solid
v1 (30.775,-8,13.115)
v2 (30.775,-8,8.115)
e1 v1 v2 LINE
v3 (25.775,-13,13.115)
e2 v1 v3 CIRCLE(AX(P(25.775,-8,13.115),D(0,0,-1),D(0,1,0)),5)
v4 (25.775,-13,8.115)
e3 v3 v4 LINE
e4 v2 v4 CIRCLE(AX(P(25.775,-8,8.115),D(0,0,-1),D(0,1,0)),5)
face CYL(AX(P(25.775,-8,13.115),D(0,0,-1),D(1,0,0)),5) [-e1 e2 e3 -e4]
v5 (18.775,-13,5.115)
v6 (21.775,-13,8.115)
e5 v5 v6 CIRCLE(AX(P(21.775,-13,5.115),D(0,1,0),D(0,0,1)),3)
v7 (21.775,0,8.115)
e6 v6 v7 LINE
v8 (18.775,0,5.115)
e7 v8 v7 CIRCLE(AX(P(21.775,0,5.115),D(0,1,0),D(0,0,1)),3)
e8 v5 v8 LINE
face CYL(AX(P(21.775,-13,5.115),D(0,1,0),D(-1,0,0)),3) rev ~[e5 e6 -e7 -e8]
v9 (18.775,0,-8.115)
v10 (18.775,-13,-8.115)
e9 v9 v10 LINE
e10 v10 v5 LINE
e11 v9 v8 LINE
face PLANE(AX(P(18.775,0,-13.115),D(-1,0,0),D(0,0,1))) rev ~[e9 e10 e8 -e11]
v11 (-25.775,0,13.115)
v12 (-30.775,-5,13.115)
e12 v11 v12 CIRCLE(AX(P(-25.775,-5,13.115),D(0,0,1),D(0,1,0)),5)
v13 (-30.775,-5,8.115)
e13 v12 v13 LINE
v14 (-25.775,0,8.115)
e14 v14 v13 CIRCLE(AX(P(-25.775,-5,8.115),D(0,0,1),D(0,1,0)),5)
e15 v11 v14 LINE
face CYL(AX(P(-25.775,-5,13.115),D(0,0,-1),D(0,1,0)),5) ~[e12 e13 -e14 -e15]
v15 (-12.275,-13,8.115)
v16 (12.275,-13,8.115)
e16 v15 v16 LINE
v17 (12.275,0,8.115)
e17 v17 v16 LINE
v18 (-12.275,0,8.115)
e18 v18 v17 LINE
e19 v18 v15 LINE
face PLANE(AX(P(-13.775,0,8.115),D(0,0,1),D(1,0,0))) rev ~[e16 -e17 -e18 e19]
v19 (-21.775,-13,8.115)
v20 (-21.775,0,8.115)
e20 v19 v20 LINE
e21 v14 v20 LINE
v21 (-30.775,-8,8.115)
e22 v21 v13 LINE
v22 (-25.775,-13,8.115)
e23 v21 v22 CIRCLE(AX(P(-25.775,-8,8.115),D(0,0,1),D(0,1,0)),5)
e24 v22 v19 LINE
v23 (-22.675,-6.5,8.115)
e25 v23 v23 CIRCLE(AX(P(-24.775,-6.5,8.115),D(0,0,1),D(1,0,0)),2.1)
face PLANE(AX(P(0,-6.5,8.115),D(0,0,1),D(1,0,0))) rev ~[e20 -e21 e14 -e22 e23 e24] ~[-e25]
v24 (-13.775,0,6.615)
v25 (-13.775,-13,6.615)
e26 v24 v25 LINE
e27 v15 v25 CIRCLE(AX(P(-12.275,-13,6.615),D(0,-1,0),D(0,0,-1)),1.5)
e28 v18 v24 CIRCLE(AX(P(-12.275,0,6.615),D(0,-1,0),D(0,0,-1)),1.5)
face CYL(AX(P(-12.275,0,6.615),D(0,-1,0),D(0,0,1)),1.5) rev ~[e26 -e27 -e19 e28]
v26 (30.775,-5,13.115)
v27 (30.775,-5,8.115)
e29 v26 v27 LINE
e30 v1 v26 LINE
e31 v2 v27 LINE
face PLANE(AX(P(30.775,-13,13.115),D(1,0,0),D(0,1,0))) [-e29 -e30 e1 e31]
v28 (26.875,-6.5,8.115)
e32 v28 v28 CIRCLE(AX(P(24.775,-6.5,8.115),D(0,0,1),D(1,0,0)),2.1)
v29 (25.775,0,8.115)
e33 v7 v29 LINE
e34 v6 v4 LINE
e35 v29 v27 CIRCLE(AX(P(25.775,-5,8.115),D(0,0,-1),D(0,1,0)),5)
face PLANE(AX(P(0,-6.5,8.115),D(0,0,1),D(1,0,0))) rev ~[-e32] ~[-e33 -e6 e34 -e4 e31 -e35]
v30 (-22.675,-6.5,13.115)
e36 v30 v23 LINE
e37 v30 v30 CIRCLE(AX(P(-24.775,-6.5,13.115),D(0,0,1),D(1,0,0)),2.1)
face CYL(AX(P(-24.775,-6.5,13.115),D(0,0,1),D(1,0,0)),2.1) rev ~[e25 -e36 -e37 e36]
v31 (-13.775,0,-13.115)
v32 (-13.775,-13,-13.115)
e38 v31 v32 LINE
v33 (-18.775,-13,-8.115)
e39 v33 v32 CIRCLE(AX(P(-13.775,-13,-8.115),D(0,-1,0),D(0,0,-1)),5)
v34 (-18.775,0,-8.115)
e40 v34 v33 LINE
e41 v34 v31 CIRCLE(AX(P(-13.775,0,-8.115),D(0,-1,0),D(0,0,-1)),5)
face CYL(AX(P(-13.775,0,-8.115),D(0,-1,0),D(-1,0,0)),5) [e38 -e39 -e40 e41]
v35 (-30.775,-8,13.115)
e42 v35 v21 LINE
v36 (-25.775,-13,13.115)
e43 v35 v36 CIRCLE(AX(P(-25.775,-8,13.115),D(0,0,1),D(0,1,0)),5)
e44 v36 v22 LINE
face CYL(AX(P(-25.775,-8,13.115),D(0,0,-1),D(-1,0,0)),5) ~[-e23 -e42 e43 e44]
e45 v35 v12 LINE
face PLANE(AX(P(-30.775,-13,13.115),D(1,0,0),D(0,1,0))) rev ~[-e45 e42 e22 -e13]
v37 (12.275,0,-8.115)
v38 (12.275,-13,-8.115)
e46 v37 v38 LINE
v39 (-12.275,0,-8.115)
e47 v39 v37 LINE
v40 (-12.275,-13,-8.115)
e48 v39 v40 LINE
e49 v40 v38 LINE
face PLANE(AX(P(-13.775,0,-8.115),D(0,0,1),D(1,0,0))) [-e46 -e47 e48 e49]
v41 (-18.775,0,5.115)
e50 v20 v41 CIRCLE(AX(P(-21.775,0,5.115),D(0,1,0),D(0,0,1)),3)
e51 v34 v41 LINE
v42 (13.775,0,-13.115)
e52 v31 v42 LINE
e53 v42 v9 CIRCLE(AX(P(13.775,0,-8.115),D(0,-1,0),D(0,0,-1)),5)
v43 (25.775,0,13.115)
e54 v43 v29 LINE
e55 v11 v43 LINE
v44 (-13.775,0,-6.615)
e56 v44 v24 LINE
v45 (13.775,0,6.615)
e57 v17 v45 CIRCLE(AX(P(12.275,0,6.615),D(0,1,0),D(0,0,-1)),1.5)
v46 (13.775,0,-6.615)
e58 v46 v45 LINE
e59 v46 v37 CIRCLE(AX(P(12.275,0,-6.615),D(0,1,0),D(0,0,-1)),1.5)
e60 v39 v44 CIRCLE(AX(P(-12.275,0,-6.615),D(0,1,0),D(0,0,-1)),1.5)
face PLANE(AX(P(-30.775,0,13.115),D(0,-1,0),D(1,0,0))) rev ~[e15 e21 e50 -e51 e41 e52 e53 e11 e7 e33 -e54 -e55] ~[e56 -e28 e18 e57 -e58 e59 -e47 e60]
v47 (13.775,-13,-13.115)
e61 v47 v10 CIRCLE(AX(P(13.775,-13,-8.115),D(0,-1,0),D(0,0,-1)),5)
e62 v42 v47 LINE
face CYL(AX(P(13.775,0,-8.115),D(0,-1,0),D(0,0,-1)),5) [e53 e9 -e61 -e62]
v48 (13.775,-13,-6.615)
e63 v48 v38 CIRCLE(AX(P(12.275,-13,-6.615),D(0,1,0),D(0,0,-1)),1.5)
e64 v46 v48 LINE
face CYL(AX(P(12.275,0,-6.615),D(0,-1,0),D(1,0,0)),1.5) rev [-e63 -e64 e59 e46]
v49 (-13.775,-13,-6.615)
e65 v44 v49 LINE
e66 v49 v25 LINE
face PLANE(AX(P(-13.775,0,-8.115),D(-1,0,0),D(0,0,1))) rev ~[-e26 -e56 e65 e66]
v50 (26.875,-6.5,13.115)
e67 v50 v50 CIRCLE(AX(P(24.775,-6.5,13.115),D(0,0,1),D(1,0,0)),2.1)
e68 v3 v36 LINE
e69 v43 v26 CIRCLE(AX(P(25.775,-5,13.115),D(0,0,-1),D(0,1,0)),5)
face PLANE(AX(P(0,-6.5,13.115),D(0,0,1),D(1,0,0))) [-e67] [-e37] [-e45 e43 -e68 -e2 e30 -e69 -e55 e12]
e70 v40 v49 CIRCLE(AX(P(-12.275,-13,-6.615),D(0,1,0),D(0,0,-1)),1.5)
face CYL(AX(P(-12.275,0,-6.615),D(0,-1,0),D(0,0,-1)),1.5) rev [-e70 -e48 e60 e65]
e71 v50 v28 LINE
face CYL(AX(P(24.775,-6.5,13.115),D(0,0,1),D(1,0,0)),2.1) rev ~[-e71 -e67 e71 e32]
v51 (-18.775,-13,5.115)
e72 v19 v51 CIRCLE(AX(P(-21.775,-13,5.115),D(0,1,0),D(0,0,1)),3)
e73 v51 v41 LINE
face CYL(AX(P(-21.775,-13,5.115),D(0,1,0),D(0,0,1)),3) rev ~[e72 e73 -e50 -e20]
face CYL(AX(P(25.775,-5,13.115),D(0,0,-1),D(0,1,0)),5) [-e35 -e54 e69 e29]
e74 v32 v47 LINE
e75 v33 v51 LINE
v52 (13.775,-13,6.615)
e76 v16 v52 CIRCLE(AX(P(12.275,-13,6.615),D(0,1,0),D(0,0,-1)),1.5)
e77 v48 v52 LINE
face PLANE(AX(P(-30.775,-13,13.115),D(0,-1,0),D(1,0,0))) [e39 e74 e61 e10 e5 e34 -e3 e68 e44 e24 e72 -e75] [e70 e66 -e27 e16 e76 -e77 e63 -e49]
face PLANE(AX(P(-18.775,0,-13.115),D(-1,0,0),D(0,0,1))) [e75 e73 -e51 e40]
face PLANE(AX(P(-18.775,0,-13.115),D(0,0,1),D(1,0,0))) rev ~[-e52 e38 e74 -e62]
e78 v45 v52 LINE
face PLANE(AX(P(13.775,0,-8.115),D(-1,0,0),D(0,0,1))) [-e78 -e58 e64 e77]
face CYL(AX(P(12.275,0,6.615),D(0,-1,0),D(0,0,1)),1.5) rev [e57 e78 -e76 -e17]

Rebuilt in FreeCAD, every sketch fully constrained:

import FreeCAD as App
import Part
import Sketcher
from FreeCAD import Vector
Q = App.Units.Quantity


def edges_at(feature, points):
    """Names of the edges that pass closest to the given points."""
    edges = feature.Shape.Edges
    near = lambda p: min(range(len(edges)), key=lambda i: edges[i].distToShape(Part.Vertex(*p))[0])
    return sorted({f"Edge{near(p) + 1}" for p in points})


def add_polygon(sketch, points):
    """Adds a closed chain of lines whose ends are joined by coincident constraints."""
    first, n = sketch.GeometryCount, len(points)
    for a, b in zip(points, points[1:] + points[:1]):
        sketch.addGeometry(Part.LineSegment(App.Vector(*a, 0), App.Vector(*b, 0)), False)
    for i in range(n):
        sketch.addConstraint(Sketcher.Constraint("Coincident", first + i, 2, first + (i + 1) % n, 1))

doc = App.newDocument("Part")
body = doc.addObject("PartDesign::Body", "Body")

# Sketch on XZ plane
sketch1 = body.newObject("Sketcher::SketchObject", "Sketch")
sketch1.AttachmentSupport = (doc.getObject("XZ_Plane"), [""])
sketch1.MapMode = "FlatFace"
add_polygon(sketch1, [(-19, 13), (-19, -13), (19, -13), (19, 13)])  # lines 0-3
add_polygon(sketch1, [(14, -8), (-14, -8), (-14, 8), (14, 8)])  # lines 4-7
sketch1.addConstraint(Sketcher.Constraint("Vertical", 0))
sketch1.addConstraint(Sketcher.Constraint("Horizontal", 1))
sketch1.addConstraint(Sketcher.Constraint("Vertical", 2))
sketch1.addConstraint(Sketcher.Constraint("Horizontal", 3))
sketch1.addConstraint(Sketcher.Constraint("Horizontal", 4))
sketch1.addConstraint(Sketcher.Constraint("Vertical", 5))
sketch1.addConstraint(Sketcher.Constraint("Horizontal", 6))
sketch1.addConstraint(Sketcher.Constraint("Vertical", 7))
sketch1.addConstraint(Sketcher.Constraint("Symmetric", 0, 2, 2, 2, -1, 1))
sketch1.addConstraint(Sketcher.Constraint("Symmetric", 4, 2, 6, 2, -1, 1))
sketch1.addConstraint(Sketcher.Constraint("DistanceX", 0, 2, 4, 2, Q("5 mm")))
sketch1.addConstraint(Sketcher.Constraint("DistanceY", 0, 2, 4, 2, Q("5 mm")))
sketch1.addConstraint(Sketcher.Constraint("DistanceX", 1, 1, 1, 2, Q("37.55 mm")))
sketch1.addConstraint(Sketcher.Constraint("DistanceY", 0, 2, 0, 1, Q("26.23 mm")))
pad1 = body.newObject("PartDesign::Pad", "Pad")
pad1.Profile = sketch1
pad1.Length = 13

# Sketch on XY plane
sketch2 = body.newObject("Sketcher::SketchObject", "Sketch001")
sketch2.AttachmentSupport = (doc.getObject("XY_Plane"), [""])
sketch2.MapMode = "FlatFace"
sketch2.AttachmentOffset = App.Placement(Vector(0, 0, 13.115), App.Rotation())
add_polygon(sketch2, [(-30.8, 0), (-30.8, -13), (30.8, -13), (30.8, 0)])  # lines 0-3
sketch2.addGeometry(Part.Circle(Vector(-24.8, -6.5, 0), Vector(0, 0, 1), 2.1), False)  # 4
sketch2.addGeometry(Part.Circle(Vector(24.8, -6.5, 0), Vector(0, 0, 1), 2.1), False)  # 5
sketch2.addConstraint(Sketcher.Constraint("Vertical", 0))
sketch2.addConstraint(Sketcher.Constraint("Horizontal", 1))
sketch2.addConstraint(Sketcher.Constraint("Vertical", 2))
sketch2.addConstraint(Sketcher.Constraint("Horizontal", 3))
sketch2.addConstraint(Sketcher.Constraint("Equal", 4, 5))
sketch2.addConstraint(Sketcher.Constraint("Symmetric", 2, 2, 3, 2, -1, 1))
sketch2.addConstraint(Sketcher.Constraint("Symmetric", 4, 3, 5, 3, -2))
sketch2.addConstraint(Sketcher.Constraint("Diameter", 4, Q("4.2 mm")))
sketch2.addConstraint(Sketcher.Constraint("DistanceY", 0, 2, 0, 1, Q("13 mm")))
sketch2.addConstraint(Sketcher.Constraint("DistanceX", 0, 2, 4, 3, Q("6 mm")))
sketch2.addConstraint(Sketcher.Constraint("DistanceX", 1, 1, 1, 2, Q("61.55 mm")))
sketch2.addConstraint(Sketcher.Constraint("DistanceY", 4, 3, -1, 1, Q("6.5 mm")))
pad2 = body.newObject("PartDesign::Pad", "Pad001")
pad2.Profile = sketch2
pad2.Length = 5
pad2.Reversed = True
doc.recompute()

fillet = body.newObject("PartDesign::Fillet", "Fillet")
fillet.Base = (pad2, edges_at(pad2, [(-18.775, -6.5, 8.115), (18.775, -6.5, 8.115)]))
fillet.Radius = 3
doc.recompute()

fillet2 = body.newObject("PartDesign::Fillet", "Fillet001")
fillet2.Base = (fillet, edges_at(fillet, [
    (-13.775, -6.5, 8.115),
    (13.775, -6.5, 8.115),
    (13.775, -6.5, -8.115),
    (-13.775, -6.5, -8.115),
]))
fillet2.Radius = 1.5
doc.recompute()

fillet3 = body.newObject("PartDesign::Fillet", "Fillet002")
fillet3.Base = (fillet2, edges_at(fillet2, [(18.775, -6.5, -13.115), (-18.775, -6.5, -13.115)]))
fillet3.Radius = 5
doc.recompute()

fillet4 = body.newObject("PartDesign::Fillet", "Fillet003")
fillet4.Base = (fillet3, edges_at(fillet3, [
    (30.775, -13, 10.615),
    (30.775, 0, 10.615),
    (-30.775, -13, 10.615),
    (-30.775, 0, 10.615),
]))
fillet4.Radius = 5

doc.recompute()
